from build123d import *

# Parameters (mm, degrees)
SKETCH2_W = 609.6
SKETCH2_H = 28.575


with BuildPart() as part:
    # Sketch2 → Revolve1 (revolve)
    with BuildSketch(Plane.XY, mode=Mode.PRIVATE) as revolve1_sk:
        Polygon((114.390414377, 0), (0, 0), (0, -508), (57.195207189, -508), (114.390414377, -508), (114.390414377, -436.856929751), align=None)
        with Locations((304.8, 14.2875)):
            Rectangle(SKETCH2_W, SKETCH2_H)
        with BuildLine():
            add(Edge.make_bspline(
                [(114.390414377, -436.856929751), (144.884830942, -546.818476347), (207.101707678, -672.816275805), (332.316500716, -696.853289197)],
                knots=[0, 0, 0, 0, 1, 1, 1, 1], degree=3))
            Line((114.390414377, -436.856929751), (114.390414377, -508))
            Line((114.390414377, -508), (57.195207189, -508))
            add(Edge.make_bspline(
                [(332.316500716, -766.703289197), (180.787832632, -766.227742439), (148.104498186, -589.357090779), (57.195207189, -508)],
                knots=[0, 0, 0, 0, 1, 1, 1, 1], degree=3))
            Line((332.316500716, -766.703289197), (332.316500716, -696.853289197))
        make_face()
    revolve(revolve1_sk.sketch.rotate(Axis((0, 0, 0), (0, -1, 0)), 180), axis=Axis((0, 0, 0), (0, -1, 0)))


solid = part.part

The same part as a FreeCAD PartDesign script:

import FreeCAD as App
import Part
import Sketcher
Q = App.Units.Quantity

doc = App.newDocument("Part")
body = doc.addObject("PartDesign::Body", "Body")

# Sketch on XY plane
sketch1 = body.newObject("Sketcher::SketchObject", "Sketch")
sketch1.AttachmentSupport = (doc.getObject("XY_Plane"), [""])
sketch1.MapMode = "FlatFace"
sketch1.addGeometry([
    Part.LineSegment(App.Vector(0, -508, 0), App.Vector(57.195207, -508, 0)),  # 0
    Part.BSplineCurve([App.Vector(332.316501, -766.703289, 0), App.Vector(180.787833, -766.227742, 0), App.Vector(148.104498, -589.357091, 0), App.Vector(57.195207, -508, 0)], [4, 4], [0, 1], False, 3, [1, 1, 1, 1], False),  # 1
    Part.LineSegment(App.Vector(332.316501, -766.703289, 0), App.Vector(332.316501, -696.853289, 0)),  # 2
    Part.BSplineCurve([App.Vector(114.390414, -436.85693, 0), App.Vector(144.884831, -546.818476, 0), App.Vector(207.101708, -672.816276, 0), App.Vector(332.316501, -696.853289, 0)], [4, 4], [0, 1], False, 3, [1, 1, 1, 1], False),  # 3
    Part.LineSegment(App.Vector(114.390414, -436.85693, 0), App.Vector(114.390414, 0, 0)),  # 4
    Part.LineSegment(App.Vector(114.390414, 0, 0), App.Vector(609.6, 0, 0)),  # 5
    Part.LineSegment(App.Vector(609.6, 0, 0), App.Vector(609.6, 28.575, 0)),  # 6
    Part.LineSegment(App.Vector(609.6, 28.575, 0), App.Vector(0, 28.575, 0)),  # 7
    Part.LineSegment(App.Vector(0, 28.575, 0), App.Vector(0, -508, 0)),  # 8
], False)
sketch1.addConstraint([
    Sketcher.Constraint("Block", 1),
    Sketcher.Constraint("Block", 3),
    Sketcher.Constraint("Coincident", 0, 2, 1, 2),
    Sketcher.Constraint("Coincident", 1, 1, 2, 1),
    Sketcher.Constraint("Coincident", 2, 2, 3, 2),
    Sketcher.Constraint("Coincident", 3, 1, 4, 1),
    Sketcher.Constraint("Coincident", 4, 2, 5, 1),
    Sketcher.Constraint("Coincident", 5, 2, 6, 1),
    Sketcher.Constraint("Coincident", 6, 2, 7, 1),
    Sketcher.Constraint("Coincident", 7, 2, 8, 1),
    Sketcher.Constraint("Coincident", 8, 2, 0, 1),
    Sketcher.Constraint("Horizontal", 0),
    Sketcher.Constraint("Vertical", 4),
    Sketcher.Constraint("Horizontal", 5),
    Sketcher.Constraint("Vertical", 6),
    Sketcher.Constraint("Horizontal", 7),
    Sketcher.Constraint("Vertical", 8),
    Sketcher.Constraint("PointOnObject", 4, 2, -1),
    Sketcher.Constraint("PointOnObject", 7, 2, -2),
    Sketcher.Constraint("DistanceX", 7, 2, 7, 1, Q("24 in")),
    Sketcher.Constraint("DistanceY", 6, 1, 6, 2, Q("1.125 in")),
])
revolution = body.newObject("PartDesign::Revolution", "Revolution")
revolution.Profile = sketch1
revolution.ReferenceAxis = (sketch1, ["V_Axis"])
revolution.Angle = 360

doc.recompute()
